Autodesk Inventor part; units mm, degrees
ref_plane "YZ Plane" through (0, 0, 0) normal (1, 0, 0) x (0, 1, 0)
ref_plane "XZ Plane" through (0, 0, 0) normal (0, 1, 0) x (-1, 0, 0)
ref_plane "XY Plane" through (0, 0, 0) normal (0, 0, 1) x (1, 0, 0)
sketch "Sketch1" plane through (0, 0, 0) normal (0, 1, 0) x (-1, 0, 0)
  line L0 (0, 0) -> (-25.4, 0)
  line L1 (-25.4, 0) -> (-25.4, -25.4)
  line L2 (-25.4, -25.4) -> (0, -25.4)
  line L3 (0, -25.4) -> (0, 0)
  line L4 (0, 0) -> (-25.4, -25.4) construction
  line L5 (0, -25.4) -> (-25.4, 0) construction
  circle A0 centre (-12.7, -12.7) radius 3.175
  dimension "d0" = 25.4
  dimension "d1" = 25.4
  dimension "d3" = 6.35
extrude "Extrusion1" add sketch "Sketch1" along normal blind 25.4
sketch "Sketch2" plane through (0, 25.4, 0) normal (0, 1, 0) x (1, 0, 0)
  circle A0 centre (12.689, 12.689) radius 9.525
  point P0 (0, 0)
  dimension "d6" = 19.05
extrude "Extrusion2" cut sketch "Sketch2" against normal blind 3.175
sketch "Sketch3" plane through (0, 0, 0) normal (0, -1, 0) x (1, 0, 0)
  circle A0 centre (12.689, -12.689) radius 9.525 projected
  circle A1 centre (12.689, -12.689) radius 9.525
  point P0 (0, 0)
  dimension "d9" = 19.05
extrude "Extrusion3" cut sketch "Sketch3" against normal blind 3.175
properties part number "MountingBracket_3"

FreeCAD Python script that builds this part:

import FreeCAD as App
import Part
import Sketcher
Q = App.Units.Quantity

doc = App.newDocument("Part")
body = doc.addObject("PartDesign::Body", "Body")

sketch1 = doc.addObject("Sketcher::SketchObject", "Sketch")
body.addObject(sketch1)
sketch1.AttachmentSupport = (doc.XZ_Plane, [""])
sketch1.MapMode = "FlatFace"
sketch1.addGeometry(Part.LineSegment(App.Vector(0, -25.4, 0), App.Vector(0, 0, 0)), False)
sketch1.addGeometry(Part.LineSegment(App.Vector(0, 0, 0), App.Vector(25.4, 0, 0)), False)
sketch1.addGeometry(Part.LineSegment(App.Vector(25.4, 0, 0), App.Vector(25.4, -25.4, 0)), False)
sketch1.addGeometry(Part.LineSegment(App.Vector(25.4, -25.4, 0), App.Vector(0, -25.4, 0)), False)
sketch1.addGeometry(Part.Circle(App.Vector(12.7, -12.7, 0), App.Vector(0, 0, 1), 3.2), False)
sketch1.addConstraint(Sketcher.Constraint("Coincident", 0, 2, 1, 1))
sketch1.addConstraint(Sketcher.Constraint("Coincident", 1, 2, 2, 1))
sketch1.addConstraint(Sketcher.Constraint("Coincident", 2, 2, 3, 1))
sketch1.addConstraint(Sketcher.Constraint("Coincident", 3, 2, 0, 1))
sketch1.addConstraint(Sketcher.Constraint("Vertical", 0))
sketch1.addConstraint(Sketcher.Constraint("Horizontal", 1))
sketch1.addConstraint(Sketcher.Constraint("Vertical", 2))
sketch1.addConstraint(Sketcher.Constraint("Horizontal", 3))
sketch1.addConstraint(Sketcher.Constraint("Coincident", 0, 2, -1, 1))
sketch1.addConstraint(Sketcher.Constraint("Equal", 3, 0))
sketch1.addConstraint(Sketcher.Constraint("Diameter", 4, Q("0.25 in")))
sketch1.addConstraint(Sketcher.Constraint("DistanceX", 1, 1, 1, 2, Q("1 in")))
sketch1.addConstraint(Sketcher.Constraint("DistanceX", -1, 1, 4, 3, Q("0.5 in")))
sketch1.addConstraint(Sketcher.Constraint("DistanceY", 4, 3, -1, 1, Q("0.5 in")))
pad1 = doc.addObject("PartDesign::Pad", "Pad")
body.addObject(pad1)
pad1.Profile = sketch1
pad1.Length = Q("1 in")
pad1.Reversed = True

sketch2 = doc.addObject("Sketcher::SketchObject", "Sketch001")
body.addObject(sketch2)
sketch2.AttachmentSupport = (doc.XZ_Plane, [""])
sketch2.MapMode = "FlatFace"
sketch2.AttachmentOffset = App.Placement(App.Vector(0, 0, -1 * 25.4), App.Rotation())
sketch2.addGeometry(Part.Circle(App.Vector(13, -13, 0), App.Vector(0, 0, 1), 10), False)
sketch2.addConstraint(Sketcher.Constraint("Diameter", 0, Q("0.75 in")))
sketch2.addConstraint(Sketcher.Constraint("DistanceX", -1, 1, 0, 3, 12.689))
sketch2.addConstraint(Sketcher.Constraint("DistanceY", 0, 3, -1, 1, 12.689))
pocket1 = doc.addObject("PartDesign::Pocket", "Pocket")
body.addObject(pocket1)
pocket1.Profile = sketch2
pocket1.Length = Q("0.125 in")
pocket1.Reversed = True

sketch3 = doc.addObject("Sketcher::SketchObject", "Sketch002")
body.addObject(sketch3)
sketch3.AttachmentSupport = (doc.XZ_Plane, [""])
sketch3.MapMode = "FlatFace"
sketch3.addGeometry(Part.Circle(App.Vector(13, -13, 0), App.Vector(0, 0, 1), 10), False)
sketch3.addConstraint(Sketcher.Constraint("Diameter", 0, Q("0.75 in")))
sketch3.addConstraint(Sketcher.Constraint("DistanceX", -1, 1, 0, 3, 12.689))
sketch3.addConstraint(Sketcher.Constraint("DistanceY", 0, 3, -1, 1, 12.689))
pocket2 = doc.addObject("PartDesign::Pocket", "Pocket001")
body.addObject(pocket2)
pocket2.Profile = sketch3
pocket2.Length = Q("0.125 in")

doc.recompute()
